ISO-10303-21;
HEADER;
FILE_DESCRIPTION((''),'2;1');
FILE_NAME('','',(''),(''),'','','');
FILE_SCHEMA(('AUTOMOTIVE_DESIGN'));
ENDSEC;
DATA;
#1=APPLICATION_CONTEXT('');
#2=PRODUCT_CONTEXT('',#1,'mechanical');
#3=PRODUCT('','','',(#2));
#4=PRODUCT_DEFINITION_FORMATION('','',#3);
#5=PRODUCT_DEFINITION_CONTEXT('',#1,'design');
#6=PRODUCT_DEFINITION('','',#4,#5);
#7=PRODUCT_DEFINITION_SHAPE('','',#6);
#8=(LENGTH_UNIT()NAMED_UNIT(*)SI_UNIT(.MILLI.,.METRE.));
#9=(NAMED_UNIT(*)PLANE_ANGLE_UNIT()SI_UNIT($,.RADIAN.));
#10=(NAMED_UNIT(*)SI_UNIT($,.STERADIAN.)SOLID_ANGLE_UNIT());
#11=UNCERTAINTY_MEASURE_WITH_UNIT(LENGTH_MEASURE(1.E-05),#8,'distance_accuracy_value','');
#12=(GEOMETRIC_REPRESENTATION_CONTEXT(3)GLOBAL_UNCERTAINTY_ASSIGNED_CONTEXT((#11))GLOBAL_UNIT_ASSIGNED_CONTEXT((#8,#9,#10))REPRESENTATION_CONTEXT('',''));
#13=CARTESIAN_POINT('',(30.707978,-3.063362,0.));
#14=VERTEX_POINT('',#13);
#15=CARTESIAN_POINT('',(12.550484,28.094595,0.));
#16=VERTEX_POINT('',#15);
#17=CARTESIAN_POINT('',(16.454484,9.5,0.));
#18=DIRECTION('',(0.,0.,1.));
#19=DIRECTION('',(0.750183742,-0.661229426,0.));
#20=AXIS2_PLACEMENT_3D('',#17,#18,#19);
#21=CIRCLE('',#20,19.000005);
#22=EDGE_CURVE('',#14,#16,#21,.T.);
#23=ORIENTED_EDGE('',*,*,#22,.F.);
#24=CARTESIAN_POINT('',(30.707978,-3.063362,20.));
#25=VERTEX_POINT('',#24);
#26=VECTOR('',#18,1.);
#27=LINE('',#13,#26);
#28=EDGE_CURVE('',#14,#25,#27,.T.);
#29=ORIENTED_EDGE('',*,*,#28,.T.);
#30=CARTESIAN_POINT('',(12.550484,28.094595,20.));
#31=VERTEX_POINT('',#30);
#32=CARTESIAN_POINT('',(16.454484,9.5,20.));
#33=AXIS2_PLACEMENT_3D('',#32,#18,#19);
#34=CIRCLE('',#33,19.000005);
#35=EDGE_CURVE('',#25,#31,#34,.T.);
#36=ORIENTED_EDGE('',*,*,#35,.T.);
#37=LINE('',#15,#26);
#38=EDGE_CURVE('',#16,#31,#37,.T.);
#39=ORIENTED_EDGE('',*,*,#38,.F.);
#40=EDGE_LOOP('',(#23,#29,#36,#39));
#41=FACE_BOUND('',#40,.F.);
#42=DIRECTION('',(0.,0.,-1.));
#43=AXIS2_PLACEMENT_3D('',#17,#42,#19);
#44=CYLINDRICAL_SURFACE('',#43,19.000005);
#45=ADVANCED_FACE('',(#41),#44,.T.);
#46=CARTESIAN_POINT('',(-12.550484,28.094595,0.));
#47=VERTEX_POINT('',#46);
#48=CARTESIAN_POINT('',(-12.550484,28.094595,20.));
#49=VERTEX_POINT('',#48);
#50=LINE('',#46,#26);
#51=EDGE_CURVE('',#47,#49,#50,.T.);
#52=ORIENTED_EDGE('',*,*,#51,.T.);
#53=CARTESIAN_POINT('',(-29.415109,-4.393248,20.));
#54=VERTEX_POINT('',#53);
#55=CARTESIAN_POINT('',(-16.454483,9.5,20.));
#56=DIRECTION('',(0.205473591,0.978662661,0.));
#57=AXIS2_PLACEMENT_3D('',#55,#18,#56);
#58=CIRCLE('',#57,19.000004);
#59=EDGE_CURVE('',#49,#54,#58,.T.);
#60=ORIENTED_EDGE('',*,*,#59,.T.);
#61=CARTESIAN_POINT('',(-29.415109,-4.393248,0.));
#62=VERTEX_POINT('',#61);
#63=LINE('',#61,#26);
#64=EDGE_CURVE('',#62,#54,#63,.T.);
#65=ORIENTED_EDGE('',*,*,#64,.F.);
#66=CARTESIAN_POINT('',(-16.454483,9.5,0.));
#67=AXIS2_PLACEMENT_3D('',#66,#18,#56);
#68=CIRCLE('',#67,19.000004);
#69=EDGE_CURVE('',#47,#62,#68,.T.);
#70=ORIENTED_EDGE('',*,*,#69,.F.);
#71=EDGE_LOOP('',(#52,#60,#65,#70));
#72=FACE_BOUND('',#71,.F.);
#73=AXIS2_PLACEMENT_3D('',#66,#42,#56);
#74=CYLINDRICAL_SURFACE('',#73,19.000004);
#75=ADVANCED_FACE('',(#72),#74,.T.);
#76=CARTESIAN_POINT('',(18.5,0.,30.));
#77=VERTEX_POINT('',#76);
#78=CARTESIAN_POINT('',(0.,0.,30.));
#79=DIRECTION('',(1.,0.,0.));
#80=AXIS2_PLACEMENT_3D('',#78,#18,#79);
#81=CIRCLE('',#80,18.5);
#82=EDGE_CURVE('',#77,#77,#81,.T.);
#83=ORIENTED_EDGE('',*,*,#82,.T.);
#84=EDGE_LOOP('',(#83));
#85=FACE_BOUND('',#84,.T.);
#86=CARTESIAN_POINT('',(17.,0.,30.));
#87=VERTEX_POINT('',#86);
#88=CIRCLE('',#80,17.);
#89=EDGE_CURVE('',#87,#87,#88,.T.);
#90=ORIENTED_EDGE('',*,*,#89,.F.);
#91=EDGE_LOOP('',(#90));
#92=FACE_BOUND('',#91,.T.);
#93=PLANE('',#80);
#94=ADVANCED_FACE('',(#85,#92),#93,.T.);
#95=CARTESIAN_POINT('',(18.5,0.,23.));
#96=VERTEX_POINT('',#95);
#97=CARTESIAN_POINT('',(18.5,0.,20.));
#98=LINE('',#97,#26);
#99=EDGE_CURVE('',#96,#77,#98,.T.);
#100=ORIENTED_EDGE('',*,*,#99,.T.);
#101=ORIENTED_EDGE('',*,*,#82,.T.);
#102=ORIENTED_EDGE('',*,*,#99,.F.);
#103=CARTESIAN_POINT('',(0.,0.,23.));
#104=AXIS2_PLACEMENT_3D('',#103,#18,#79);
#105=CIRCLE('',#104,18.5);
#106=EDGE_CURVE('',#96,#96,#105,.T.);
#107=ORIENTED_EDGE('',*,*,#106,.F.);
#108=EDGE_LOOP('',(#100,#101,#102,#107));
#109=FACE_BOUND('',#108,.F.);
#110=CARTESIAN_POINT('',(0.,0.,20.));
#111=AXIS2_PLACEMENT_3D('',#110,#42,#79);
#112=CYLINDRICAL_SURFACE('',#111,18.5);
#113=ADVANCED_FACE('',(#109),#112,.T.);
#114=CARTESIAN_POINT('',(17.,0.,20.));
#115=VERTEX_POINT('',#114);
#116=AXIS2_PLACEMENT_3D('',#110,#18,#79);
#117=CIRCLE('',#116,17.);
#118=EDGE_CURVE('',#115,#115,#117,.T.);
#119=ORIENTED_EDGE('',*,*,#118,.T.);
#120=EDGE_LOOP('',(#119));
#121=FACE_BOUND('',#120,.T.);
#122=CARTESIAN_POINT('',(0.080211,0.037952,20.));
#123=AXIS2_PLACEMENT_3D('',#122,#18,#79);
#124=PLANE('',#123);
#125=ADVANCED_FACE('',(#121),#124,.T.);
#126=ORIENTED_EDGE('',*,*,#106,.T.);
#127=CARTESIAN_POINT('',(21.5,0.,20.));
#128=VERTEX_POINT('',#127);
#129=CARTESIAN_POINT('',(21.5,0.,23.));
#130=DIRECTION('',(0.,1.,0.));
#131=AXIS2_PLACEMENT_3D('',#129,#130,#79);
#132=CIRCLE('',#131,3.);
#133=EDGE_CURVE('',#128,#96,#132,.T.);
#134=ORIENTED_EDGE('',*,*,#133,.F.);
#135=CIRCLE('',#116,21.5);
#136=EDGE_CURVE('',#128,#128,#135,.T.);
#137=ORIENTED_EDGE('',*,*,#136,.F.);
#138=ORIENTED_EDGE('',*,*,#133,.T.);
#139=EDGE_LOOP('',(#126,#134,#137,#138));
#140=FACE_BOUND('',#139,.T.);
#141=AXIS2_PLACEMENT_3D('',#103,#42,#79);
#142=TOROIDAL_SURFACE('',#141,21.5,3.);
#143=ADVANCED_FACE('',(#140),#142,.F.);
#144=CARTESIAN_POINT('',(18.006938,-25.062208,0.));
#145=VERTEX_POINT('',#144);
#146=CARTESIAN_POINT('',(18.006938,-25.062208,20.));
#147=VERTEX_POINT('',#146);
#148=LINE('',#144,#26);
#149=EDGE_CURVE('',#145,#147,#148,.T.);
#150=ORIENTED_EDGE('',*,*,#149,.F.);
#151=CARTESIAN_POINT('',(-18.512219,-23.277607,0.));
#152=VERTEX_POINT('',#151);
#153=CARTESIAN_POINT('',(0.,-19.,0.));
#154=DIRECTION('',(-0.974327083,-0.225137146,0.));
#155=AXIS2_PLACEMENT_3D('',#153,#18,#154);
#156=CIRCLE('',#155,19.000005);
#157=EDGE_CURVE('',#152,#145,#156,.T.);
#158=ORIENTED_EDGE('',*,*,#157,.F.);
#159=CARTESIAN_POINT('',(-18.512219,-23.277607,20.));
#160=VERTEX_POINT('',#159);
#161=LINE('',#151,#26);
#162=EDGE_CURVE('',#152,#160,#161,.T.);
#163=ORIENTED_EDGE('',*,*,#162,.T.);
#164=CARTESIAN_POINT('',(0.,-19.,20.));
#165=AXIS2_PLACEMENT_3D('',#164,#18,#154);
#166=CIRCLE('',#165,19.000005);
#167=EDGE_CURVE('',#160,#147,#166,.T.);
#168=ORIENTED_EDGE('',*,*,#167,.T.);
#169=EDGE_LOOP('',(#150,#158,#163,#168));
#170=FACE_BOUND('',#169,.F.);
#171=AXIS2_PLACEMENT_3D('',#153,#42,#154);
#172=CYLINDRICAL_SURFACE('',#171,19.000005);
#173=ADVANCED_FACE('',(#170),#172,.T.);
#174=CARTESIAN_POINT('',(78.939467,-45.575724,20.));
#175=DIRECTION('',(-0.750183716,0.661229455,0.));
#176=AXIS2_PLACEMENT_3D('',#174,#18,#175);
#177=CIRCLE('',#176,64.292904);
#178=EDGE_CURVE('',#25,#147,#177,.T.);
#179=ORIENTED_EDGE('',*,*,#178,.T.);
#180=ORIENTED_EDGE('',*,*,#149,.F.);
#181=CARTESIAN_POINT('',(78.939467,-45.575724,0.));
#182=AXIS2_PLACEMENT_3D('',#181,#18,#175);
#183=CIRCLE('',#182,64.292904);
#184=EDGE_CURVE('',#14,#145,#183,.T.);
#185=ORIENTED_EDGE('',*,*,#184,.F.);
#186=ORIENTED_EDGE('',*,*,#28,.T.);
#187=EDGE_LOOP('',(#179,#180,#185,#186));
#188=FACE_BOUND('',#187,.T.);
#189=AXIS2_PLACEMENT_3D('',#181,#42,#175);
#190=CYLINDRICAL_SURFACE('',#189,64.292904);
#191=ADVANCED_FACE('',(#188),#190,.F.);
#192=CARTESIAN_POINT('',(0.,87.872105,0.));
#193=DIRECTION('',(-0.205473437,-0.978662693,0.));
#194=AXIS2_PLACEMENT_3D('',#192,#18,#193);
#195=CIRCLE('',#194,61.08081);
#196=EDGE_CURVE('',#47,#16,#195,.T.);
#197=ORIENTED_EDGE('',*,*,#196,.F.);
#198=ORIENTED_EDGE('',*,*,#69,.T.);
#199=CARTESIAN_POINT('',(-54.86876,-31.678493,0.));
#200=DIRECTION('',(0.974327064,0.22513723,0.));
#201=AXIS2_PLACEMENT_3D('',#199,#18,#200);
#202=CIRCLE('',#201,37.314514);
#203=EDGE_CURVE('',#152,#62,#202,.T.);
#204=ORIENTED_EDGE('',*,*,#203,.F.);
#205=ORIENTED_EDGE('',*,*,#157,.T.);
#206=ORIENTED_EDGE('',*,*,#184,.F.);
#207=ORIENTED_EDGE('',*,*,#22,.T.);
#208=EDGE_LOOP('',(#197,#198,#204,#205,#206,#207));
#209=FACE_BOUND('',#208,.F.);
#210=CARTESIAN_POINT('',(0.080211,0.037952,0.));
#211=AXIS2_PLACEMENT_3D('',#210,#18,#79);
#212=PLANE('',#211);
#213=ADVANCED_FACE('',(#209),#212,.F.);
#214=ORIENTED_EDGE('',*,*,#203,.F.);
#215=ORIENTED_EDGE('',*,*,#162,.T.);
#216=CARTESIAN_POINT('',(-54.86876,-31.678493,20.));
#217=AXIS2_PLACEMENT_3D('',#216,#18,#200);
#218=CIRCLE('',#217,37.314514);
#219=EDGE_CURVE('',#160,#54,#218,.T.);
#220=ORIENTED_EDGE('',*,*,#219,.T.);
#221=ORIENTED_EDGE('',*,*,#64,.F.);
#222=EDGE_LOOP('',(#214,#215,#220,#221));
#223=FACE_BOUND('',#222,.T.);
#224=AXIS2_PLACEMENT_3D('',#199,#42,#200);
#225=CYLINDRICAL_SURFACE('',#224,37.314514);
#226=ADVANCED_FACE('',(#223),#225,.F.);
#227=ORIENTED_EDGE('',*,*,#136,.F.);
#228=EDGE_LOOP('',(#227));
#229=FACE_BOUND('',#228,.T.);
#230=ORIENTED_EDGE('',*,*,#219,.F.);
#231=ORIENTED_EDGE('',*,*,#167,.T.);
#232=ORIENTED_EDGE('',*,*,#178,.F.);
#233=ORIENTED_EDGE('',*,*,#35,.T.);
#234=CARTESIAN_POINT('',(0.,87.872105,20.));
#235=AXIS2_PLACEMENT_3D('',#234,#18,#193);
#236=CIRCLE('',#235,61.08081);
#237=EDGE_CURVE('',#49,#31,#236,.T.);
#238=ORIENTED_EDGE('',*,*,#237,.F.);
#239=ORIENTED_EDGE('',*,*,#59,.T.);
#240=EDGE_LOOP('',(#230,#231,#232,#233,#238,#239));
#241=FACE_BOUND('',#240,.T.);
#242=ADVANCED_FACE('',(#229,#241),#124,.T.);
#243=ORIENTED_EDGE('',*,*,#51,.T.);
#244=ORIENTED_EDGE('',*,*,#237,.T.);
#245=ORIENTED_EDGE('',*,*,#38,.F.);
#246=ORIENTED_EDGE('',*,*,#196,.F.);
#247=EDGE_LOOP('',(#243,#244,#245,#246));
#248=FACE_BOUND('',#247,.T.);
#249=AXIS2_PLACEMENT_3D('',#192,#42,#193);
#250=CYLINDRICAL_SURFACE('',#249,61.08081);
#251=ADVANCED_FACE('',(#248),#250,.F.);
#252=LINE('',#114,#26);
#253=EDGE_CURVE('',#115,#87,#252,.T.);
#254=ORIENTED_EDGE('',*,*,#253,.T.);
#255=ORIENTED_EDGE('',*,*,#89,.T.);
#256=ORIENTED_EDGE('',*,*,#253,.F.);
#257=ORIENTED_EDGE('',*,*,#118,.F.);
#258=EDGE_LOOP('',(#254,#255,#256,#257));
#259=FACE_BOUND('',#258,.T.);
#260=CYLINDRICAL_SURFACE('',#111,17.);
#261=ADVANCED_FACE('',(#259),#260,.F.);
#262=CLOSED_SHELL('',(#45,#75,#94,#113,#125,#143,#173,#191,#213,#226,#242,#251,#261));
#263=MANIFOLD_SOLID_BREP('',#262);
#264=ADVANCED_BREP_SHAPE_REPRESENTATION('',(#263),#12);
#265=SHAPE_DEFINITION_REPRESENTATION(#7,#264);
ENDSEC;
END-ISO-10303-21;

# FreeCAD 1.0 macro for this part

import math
import FreeCAD as App
import Part
import Sketcher


def edges_at(feature, points):
    """Names of the edges that pass closest to the given points."""
    edges = feature.Shape.Edges
    near = lambda p: min(range(len(edges)), key=lambda i: edges[i].distToShape(Part.Vertex(*p))[0])
    return sorted({f"Edge{near(p) + 1}" for p in points})

doc = App.newDocument("Part")
body = doc.addObject("PartDesign::Body", "Body")

sketch1 = doc.addObject("Sketcher::SketchObject", "Sketch")
body.addObject(sketch1)
sketch1.AttachmentSupport = (doc.XY_Plane, [""])
sketch1.MapMode = "FlatFace"
sketch1.addGeometry(Part.ArcOfCircle(Part.Circle(App.Vector(16.454484, 9.5, 0), App.Vector(0, 0, 1), 19.000005), math.radians(-41.393703), math.radians(101.857225)), False)
sketch1.addGeometry(Part.ArcOfCircle(Part.Circle(App.Vector(0, 87.872105, 0), App.Vector(0, 0, 1), 61.08081), math.radians(-101.857215), math.radians(-78.142785)), False)
sketch1.addGeometry(Part.ArcOfCircle(Part.Circle(App.Vector(-16.454483, 9.5, 0), App.Vector(0, 0, 1), 19.000004), math.radians(78.142776), math.radians(226.989056)), False)
sketch1.addGeometry(Part.ArcOfCircle(Part.Circle(App.Vector(-54.86876, -31.678493, 0), App.Vector(0, 0, 1), 37.314514), math.radians(13.010948), math.radians(46.989053)), False)
sketch1.addGeometry(Part.ArcOfCircle(Part.Circle(App.Vector(0, -19, 0), App.Vector(0, 0, 1), 19.000005), math.radians(-166.989057), math.radians(-18.606298)), False)
sketch1.addGeometry(Part.ArcOfCircle(Part.Circle(App.Vector(78.939467, -45.575724, 0), App.Vector(0, 0, 1), 64.292904), math.radians(138.606294), math.radians(161.393704)), False)
sketch1.addConstraint(Sketcher.Constraint("Coincident", 0, 2, 1, 2))
sketch1.addConstraint(Sketcher.Constraint("Coincident", 1, 1, 2, 1))
sketch1.addConstraint(Sketcher.Constraint("Coincident", 2, 2, 3, 2))
sketch1.addConstraint(Sketcher.Constraint("Coincident", 3, 1, 4, 1))
sketch1.addConstraint(Sketcher.Constraint("Coincident", 4, 2, 5, 2))
sketch1.addConstraint(Sketcher.Constraint("Coincident", 5, 1, 0, 1))
sketch1.addConstraint(Sketcher.Constraint("PointOnObject", 1, 3, -2))
sketch1.addConstraint(Sketcher.Constraint("PointOnObject", 4, 3, -2))
sketch1.addConstraint(Sketcher.Constraint("DistanceY", 4, 3, -1, 1, 19.0))
sketch1.addConstraint(Sketcher.Constraint("DistanceY", -1, 1, 0, 3, 9.5))
sketch1.addConstraint(Sketcher.Constraint("DistanceY", -1, 1, 2, 3, 9.5))
sketch1.addConstraint(Sketcher.Constraint("Radius", 1, 61.08081))
sketch1.addConstraint(Sketcher.Constraint("Radius", 0, 19.000005))
sketch1.addConstraint(Sketcher.Constraint("Radius", 2, 19.000004))
sketch1.addConstraint(Sketcher.Constraint("Radius", 3, 37.314514))
sketch1.addConstraint(Sketcher.Constraint("Radius", 4, 19.000005))
sketch1.addConstraint(Sketcher.Constraint("Radius", 5, 64.292904))
sketch1.addConstraint(Sketcher.Constraint("DistanceX", 0, 2, 0, 3, 3.904))
sketch1.addConstraint(Sketcher.Constraint("DistanceX", 2, 3, 1, 1, 3.903999))
sketch1.addConstraint(Sketcher.Constraint("DistanceY", 3, 3, 1, 3, 119.550598))
sketch1.addConstraint(Sketcher.Constraint("DistanceY", 4, 2, 3, 1, 1.784601))
sketch1.addConstraint(Sketcher.Constraint("DistanceX", 2, 2, -1, 1, 29.415109))
sketch1.addConstraint(Sketcher.Constraint("DistanceX", 3, 1, -1, 1, 18.512219))
sketch1.addConstraint(Sketcher.Constraint("DistanceX", -1, 1, 5, 1, 30.707978))
pad1 = doc.addObject("PartDesign::Pad", "Pad")
body.addObject(pad1)
pad1.Profile = sketch1
pad1.Length = 20

sketch2 = doc.addObject("Sketcher::SketchObject", "Sketch001")
body.addObject(sketch2)
sketch2.AttachmentSupport = (doc.XY_Plane, [""])
sketch2.MapMode = "FlatFace"
sketch2.AttachmentOffset = App.Placement(App.Vector(0, 0, 20), App.Rotation())
sketch2.addGeometry(Part.Circle(App.Vector(0, 0, 0), App.Vector(0, 0, 1), 18), False)
sketch2.addGeometry(Part.Circle(App.Vector(0, 0, 0), App.Vector(0, 0, 1), 17), False)
sketch2.addConstraint(Sketcher.Constraint("Coincident", 0, 3, -1, 1))
sketch2.addConstraint(Sketcher.Constraint("Coincident", 1, 3, -1, 1))
sketch2.addConstraint(Sketcher.Constraint("Diameter", 0, 37.0))
sketch2.addConstraint(Sketcher.Constraint("Diameter", 1, 34.0))
pad2 = doc.addObject("PartDesign::Pad", "Pad001")
body.addObject(pad2)
pad2.Profile = sketch2
pad2.Length = 10
doc.recompute()

fillet = doc.addObject("PartDesign::Fillet", "Fillet")
body.addObject(fillet)
fillet.Base = (pad2, edges_at(pad2, [(-18.5, 0, 20)]))
fillet.Radius = 3

doc.recompute()
